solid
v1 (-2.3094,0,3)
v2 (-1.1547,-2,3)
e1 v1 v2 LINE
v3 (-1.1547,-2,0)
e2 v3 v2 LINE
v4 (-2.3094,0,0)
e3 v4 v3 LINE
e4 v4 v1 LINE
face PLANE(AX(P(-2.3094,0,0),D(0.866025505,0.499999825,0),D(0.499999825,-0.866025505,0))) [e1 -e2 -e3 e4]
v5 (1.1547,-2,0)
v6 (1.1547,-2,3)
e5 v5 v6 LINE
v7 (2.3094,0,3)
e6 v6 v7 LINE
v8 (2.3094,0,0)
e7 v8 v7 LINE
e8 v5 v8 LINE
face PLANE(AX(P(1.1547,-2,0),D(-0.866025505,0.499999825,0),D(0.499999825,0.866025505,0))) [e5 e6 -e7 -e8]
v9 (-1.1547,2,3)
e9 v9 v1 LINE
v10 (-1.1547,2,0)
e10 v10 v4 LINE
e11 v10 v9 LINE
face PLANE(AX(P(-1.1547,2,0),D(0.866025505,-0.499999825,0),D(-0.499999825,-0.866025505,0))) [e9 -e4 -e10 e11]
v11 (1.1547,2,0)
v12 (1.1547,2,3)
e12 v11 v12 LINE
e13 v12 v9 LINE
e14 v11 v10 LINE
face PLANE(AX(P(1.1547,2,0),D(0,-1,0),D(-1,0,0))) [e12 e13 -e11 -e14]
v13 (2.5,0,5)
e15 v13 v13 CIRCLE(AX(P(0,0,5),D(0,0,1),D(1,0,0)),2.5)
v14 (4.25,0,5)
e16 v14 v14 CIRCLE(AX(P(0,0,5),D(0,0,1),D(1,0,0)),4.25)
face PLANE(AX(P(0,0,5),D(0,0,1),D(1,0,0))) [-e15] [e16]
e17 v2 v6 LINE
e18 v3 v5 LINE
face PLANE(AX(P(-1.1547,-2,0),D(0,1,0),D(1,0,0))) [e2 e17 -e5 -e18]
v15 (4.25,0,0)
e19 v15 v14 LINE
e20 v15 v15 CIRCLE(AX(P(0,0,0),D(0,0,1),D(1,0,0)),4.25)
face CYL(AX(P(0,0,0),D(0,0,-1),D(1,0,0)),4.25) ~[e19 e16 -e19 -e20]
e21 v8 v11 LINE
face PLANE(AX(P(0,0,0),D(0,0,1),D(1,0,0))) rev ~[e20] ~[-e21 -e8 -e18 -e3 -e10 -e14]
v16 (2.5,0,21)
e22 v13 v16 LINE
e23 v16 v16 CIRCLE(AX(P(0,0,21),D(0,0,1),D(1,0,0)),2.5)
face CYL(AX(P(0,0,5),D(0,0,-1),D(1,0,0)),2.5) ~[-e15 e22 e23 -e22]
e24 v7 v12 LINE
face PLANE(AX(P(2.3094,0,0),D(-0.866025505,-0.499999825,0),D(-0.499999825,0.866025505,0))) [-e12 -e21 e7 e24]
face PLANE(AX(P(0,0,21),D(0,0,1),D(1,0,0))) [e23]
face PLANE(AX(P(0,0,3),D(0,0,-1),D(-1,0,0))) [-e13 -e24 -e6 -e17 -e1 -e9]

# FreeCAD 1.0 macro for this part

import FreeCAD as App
import Part
import Sketcher
Q = App.Units.Quantity


def add_polygon(sketch, points):
    """Adds a closed chain of lines whose ends are joined by coincident constraints."""
    first, n = sketch.GeometryCount, len(points)
    for a, b in zip(points, points[1:] + points[:1]):
        sketch.addGeometry(Part.LineSegment(App.Vector(*a, 0), App.Vector(*b, 0)), False)
    for i in range(n):
        sketch.addConstraint(Sketcher.Constraint("Coincident", first + i, 2, first + (i + 1) % n, 1))

doc = App.newDocument("Part")
body = doc.addObject("PartDesign::Body", "Body")

# Sketch on XY plane
sketch1 = body.newObject("Sketcher::SketchObject", "Sketch")
sketch1.AttachmentSupport = (doc.getObject("XY_Plane"), [""])
sketch1.MapMode = "FlatFace"
sketch1.addGeometry(Part.Circle(App.Vector(0, 0, 0), App.Vector(0, 0, 1), 4.2), False)
sketch1.addConstraint(Sketcher.Constraint("Coincident", 0, 3, -1, 1))
sketch1.addConstraint(Sketcher.Constraint("Diameter", 0, 8.5))
pad1 = body.newObject("PartDesign::Pad", "Pad")
pad1.Profile = sketch1
pad1.Length = 5

# Sketch on XY plane
sketch2 = body.newObject("Sketcher::SketchObject", "Sketch001")
sketch2.AttachmentSupport = (doc.getObject("XY_Plane"), [""])
sketch2.MapMode = "FlatFace"
sketch2.AttachmentOffset = App.Placement(App.Vector(0, 0, 5), App.Rotation())
sketch2.addGeometry(Part.Circle(App.Vector(0, 0, 0), App.Vector(0, 0, 1), 2.5), False)
sketch2.addConstraint(Sketcher.Constraint("Coincident", 0, 3, -1, 1))
sketch2.addConstraint(Sketcher.Constraint("Diameter", 0, 5.0))
pad2 = body.newObject("PartDesign::Pad", "Pad001")
pad2.Profile = sketch2
pad2.Length = 16

# Sketch on XY plane
sketch3 = body.newObject("Sketcher::SketchObject", "Sketch002")
sketch3.AttachmentSupport = (doc.getObject("XY_Plane"), [""])
sketch3.MapMode = "FlatFace"
add_polygon(sketch3, [(-1.2, -2), (-2.3, 0), (-1.2, 2), (1.2, 2), (2.3, 0), (1.2, -2)])  # lines 0-5
sketch3.addConstraint(Sketcher.Constraint("Horizontal", 2))
sketch3.addConstraint(Sketcher.Constraint("Horizontal", 5))
sketch3.addConstraint(Sketcher.Constraint("Symmetric", 0, 2, 3, 2, -1, 1))
sketch3.addConstraint(Sketcher.Constraint("Symmetric", 1, 2, 4, 2, -1, 1))
sketch3.addConstraint(Sketcher.Constraint("PointOnObject", 0, 2, -1))
sketch3.addConstraint(Sketcher.Constraint("Parallel", 0, 3))
sketch3.addConstraint(Sketcher.Constraint("Vertical", 2, 2, 4, 2))
sketch3.addConstraint(Sketcher.Constraint("DistanceY", 4, 2, 2, 2, 4.0))
sketch3.addConstraint(Sketcher.Constraint("Angle", 0, Q("120 deg")))
sketch3.addConstraint(Sketcher.Constraint("DistanceX", 2, 1, 2, 2, 2.3094))
pocket1 = body.newObject("PartDesign::Pocket", "Pocket")
pocket1.Profile = sketch3
pocket1.Length = 3
pocket1.Reversed = True

doc.recompute()
